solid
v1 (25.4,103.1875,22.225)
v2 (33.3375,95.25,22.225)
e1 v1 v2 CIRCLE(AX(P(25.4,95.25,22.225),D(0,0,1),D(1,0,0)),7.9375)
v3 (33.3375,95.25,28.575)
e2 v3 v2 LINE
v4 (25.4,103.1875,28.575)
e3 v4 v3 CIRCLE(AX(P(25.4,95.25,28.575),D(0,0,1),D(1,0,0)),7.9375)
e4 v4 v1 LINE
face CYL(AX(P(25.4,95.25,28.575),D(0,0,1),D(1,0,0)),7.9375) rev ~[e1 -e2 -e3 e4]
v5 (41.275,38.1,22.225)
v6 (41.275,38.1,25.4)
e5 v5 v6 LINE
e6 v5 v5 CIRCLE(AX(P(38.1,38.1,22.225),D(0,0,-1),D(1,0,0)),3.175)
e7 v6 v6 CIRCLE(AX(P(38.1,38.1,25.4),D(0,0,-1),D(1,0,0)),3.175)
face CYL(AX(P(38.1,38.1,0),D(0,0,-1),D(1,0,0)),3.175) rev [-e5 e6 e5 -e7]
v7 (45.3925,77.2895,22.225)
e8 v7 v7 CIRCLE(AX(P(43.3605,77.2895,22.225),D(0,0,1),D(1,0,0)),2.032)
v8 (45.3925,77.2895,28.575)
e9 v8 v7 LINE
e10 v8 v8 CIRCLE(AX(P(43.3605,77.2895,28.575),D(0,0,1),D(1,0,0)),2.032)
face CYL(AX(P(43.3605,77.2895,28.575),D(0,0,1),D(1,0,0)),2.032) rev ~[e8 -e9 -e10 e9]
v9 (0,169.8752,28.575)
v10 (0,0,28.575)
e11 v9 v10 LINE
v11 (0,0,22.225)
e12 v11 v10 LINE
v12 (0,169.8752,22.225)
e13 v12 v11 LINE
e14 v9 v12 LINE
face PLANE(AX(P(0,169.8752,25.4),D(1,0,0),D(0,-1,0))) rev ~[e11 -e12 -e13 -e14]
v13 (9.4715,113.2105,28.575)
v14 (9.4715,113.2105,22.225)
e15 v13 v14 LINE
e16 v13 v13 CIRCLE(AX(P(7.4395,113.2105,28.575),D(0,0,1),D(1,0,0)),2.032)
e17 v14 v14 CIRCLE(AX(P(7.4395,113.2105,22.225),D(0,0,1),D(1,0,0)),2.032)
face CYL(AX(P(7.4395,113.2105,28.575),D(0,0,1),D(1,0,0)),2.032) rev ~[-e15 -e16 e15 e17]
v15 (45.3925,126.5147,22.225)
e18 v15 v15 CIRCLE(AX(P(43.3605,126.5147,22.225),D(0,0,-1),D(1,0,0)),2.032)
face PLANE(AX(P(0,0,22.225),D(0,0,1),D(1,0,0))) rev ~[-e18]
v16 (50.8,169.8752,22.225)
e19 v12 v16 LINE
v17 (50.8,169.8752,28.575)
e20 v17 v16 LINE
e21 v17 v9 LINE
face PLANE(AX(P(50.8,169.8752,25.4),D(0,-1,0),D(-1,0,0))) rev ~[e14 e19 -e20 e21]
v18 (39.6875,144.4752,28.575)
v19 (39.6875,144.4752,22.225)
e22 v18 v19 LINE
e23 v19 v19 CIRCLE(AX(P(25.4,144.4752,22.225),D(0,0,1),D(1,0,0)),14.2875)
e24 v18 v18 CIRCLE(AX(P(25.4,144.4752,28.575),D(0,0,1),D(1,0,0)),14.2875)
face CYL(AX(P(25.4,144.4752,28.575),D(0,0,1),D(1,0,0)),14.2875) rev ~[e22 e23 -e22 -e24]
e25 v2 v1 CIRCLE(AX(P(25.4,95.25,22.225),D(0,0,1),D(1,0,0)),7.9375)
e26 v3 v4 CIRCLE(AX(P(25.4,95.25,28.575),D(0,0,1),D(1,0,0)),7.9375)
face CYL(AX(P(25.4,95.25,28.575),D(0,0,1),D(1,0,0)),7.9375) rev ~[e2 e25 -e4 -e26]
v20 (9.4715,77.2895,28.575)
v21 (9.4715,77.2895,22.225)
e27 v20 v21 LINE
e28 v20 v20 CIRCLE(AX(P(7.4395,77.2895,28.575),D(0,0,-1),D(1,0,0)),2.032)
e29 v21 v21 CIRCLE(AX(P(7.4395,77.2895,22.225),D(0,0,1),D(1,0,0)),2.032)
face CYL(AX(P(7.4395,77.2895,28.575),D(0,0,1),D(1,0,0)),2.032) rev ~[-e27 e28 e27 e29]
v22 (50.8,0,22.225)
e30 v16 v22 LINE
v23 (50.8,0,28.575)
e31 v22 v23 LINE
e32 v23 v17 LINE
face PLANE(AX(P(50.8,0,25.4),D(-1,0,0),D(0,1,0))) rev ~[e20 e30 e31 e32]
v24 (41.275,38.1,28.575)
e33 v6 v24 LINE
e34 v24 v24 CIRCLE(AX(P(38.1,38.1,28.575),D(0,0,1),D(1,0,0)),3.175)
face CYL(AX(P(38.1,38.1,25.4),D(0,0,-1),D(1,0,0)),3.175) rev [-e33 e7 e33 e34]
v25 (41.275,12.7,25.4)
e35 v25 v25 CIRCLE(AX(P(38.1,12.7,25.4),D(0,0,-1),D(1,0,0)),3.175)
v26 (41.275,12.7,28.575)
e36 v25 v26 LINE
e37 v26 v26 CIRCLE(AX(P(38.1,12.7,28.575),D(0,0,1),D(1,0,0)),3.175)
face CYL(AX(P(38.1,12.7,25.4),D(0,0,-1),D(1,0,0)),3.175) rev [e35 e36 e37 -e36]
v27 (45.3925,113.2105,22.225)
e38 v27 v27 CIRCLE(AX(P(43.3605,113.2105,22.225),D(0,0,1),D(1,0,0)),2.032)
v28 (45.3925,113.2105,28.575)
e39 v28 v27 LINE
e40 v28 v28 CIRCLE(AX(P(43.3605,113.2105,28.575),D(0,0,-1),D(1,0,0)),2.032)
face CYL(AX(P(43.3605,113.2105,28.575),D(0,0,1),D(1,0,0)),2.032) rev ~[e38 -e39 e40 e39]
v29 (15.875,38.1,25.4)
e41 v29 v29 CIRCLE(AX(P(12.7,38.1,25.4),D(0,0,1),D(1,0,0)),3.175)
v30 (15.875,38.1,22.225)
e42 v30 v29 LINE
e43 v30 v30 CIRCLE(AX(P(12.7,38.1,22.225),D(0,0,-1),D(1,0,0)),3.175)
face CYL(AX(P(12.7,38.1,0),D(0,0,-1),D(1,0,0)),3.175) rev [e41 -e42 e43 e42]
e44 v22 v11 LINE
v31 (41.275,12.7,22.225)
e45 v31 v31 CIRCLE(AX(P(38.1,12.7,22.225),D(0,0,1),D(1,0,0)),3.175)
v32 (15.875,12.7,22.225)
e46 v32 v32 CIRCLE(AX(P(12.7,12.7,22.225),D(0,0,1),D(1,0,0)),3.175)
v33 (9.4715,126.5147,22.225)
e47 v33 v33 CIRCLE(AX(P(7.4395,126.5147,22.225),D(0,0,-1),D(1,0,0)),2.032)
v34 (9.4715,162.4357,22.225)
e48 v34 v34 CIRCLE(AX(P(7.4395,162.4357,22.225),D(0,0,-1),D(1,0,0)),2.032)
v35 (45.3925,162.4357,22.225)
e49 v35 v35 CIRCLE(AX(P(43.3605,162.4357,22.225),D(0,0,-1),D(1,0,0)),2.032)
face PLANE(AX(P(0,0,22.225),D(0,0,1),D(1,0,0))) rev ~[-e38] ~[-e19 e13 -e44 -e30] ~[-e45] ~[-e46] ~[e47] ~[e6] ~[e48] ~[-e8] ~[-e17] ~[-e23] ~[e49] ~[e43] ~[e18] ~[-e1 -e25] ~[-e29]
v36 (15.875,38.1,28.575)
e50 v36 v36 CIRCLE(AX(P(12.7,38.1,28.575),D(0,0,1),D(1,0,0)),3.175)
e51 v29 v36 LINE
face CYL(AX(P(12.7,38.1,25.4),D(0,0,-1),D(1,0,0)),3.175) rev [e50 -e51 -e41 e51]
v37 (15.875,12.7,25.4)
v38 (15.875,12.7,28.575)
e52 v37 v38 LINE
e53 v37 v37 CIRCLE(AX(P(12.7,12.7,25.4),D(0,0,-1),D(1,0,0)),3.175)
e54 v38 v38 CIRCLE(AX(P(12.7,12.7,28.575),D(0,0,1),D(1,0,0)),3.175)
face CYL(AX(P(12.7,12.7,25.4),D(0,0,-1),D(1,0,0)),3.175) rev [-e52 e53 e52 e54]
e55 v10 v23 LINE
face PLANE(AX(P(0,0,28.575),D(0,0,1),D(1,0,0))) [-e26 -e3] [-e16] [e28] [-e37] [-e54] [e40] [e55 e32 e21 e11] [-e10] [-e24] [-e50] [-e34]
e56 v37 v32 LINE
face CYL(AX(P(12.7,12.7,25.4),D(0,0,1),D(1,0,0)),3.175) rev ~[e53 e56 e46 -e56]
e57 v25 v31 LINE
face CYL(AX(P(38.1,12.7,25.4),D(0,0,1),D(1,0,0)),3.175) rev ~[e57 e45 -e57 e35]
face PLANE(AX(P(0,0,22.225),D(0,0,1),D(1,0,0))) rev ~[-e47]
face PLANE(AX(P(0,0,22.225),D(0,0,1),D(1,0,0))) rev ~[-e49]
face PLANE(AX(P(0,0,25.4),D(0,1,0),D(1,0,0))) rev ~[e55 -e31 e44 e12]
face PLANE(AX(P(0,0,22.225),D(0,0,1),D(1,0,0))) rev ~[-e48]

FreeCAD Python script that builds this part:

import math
import FreeCAD as App
import Part
import Sketcher
from FreeCAD import Vector
Q = App.Units.Quantity


def add_polygon(sketch, points):
    """Adds a closed chain of lines whose ends are joined by coincident constraints."""
    first, n = sketch.GeometryCount, len(points)
    for a, b in zip(points, points[1:] + points[:1]):
        sketch.addGeometry(Part.LineSegment(App.Vector(*a, 0), App.Vector(*b, 0)), False)
    for i in range(n):
        sketch.addConstraint(Sketcher.Constraint("Coincident", first + i, 2, first + (i + 1) % n, 1))

doc = App.newDocument("Part")
body = doc.addObject("PartDesign::Body", "Body")

sketch1 = doc.addObject("Sketcher::SketchObject", "Sketch")
body.addObject(sketch1)
sketch1.AttachmentSupport = (doc.XY_Plane, [""])
sketch1.MapMode = "FlatFace"
add_polygon(sketch1, [(0, 0), (50.8, 0), (50.8, 169.8752), (25.4, 169.8752), (0, 169.8752)])
sketch1.addGeometry(Part.Circle(Vector(43.3605, 162.4357, 0), Vector(0, 0, 1), 2.032), False)
sketch1.addGeometry(Part.Circle(Vector(25.4, 144.4752, 0), Vector(0, 0, 1), 14.2875), False)
sketch1.addGeometry(Part.Circle(Vector(12.7, 38.1, 0), Vector(0, 0, 1), 3.175), False)
sketch1.addGeometry(Part.Circle(Vector(38.1, 38.1, 0), Vector(0, 0, 1), 3.175), False)
sketch1.addGeometry(Part.ArcOfCircle(Part.Circle(Vector(7.4395, 126.5147, 0), Vector(0, 0, 1), 2.032), math.radians(90), math.radians(360)), False)
sketch1.addGeometry(Part.ArcOfCircle(Part.Circle(Vector(7.4395, 126.5147, 0), Vector(0, 0, 1), 2.032), math.radians(0), math.radians(90)), False)
sketch1.addGeometry(Part.ArcOfCircle(Part.Circle(Vector(7.4395, 162.4357, 0), Vector(0, 0, 1), 2.032), math.radians(0), math.radians(270)), False)
sketch1.addGeometry(Part.ArcOfCircle(Part.Circle(Vector(7.4395, 162.4357, 0), Vector(0, 0, 1), 2.032), math.radians(-90), math.radians(0)), False)
sketch1.addGeometry(Part.Circle(Vector(43.3605, 126.5147, 0), Vector(0, 0, 1), 2.032), False)
sketch1.addConstraint([
    Sketcher.Constraint("Tangent", 9, 1, 10, 2),
    Sketcher.Constraint("Coincident", 10, 1, 9, 2),
    Sketcher.Constraint("Tangent", 11, 1, 12, 2),
    Sketcher.Constraint("Coincident", 12, 1, 11, 2),
    Sketcher.Constraint("Horizontal", 0),
    Sketcher.Constraint("Vertical", 1),
    Sketcher.Constraint("Horizontal", 2),
    Sketcher.Constraint("Horizontal", 3),
    Sketcher.Constraint("Vertical", 4),
    Sketcher.Constraint("Coincident", 4, 2, -1, 1),
    Sketcher.Constraint("Equal", 7, 8),
    Sketcher.Constraint("Equal", 5, 9),
    Sketcher.Constraint("Equal", 10, 11),
    Sketcher.Constraint("Equal", 12, 13),
    Sketcher.Constraint("Horizontal", 7, 3, 8, 3),
    Sketcher.Constraint("Horizontal", 5, 3, 11, 3),
    Sketcher.Constraint("Horizontal", 10, 3, 13, 3),
    Sketcher.Constraint("Horizontal", 13, 3, 10, 1),
    Sketcher.Constraint("Horizontal", 12, 3, 11, 1),
    Sketcher.Constraint("Vertical", 10, 3, 11, 3),
    Sketcher.Constraint("Vertical", 5, 3, 13, 3),
    Sketcher.Constraint("Vertical", 6, 3, 2, 2),
    Sketcher.Constraint("Vertical", 12, 3, 9, 1),
    Sketcher.Constraint("Vertical", 9, 1, 12, 1),
    Sketcher.Constraint("Equal", 2, 3),
    Sketcher.Constraint("Diameter", 5, Q("0.16 in")),
    Sketcher.Constraint("Diameter", 7, Q("0.25 in")),
    Sketcher.Constraint("DistanceX", 0, 1, 0, 2, Q("2 in")),
    Sketcher.Constraint("Diameter", 6, Q("1.125 in")),
    Sketcher.Constraint("DistanceX", 7, 3, 8, 3, Q("1 in")),
    Sketcher.Constraint("DistanceY", 6, 3, 1, 2, Q("1 in")),
    Sketcher.Constraint("DistanceX", -1, 1, 7, 3, Q("0.5 in")),
    Sketcher.Constraint("DistanceY", -1, 1, 7, 3, Q("1.5 in")),
    Sketcher.Constraint("DistanceY", 1, 1, 1, 2, Q("6.688 in")),
    Sketcher.Constraint("DistanceX", -1, 1, 5, 3, Q("1.7071 in")),
    Sketcher.Constraint("DistanceY", -1, 1, 5, 3, Q("6.3951 in")),
    Sketcher.Constraint("DistanceX", -1, 1, 9, 3, Q("0.2929 in")),
    Sketcher.Constraint("DistanceY", -1, 1, 9, 3, Q("4.9809 in")),
])
pad1 = doc.addObject("PartDesign::Pad", "Pad")
body.addObject(pad1)
pad1.Profile = sketch1
pad1.Length = Q("1 in")

sketch2 = doc.addObject("Sketcher::SketchObject", "Sketch001")
body.addObject(sketch2)
sketch2.AttachmentSupport = (doc.XZ_Plane, [""])
sketch2.MapMode = "FlatFace"
sketch2.AttachmentOffset = App.Placement(Vector(0, 0, -6.688 * 25.4), App.Rotation())
add_polygon(sketch2, [(47.625, 3.175), (3.175, 3.175), (3.175, 22.225), (47.625, 22.225)])
sketch2.addConstraint([
    Sketcher.Constraint("Horizontal", 0),
    Sketcher.Constraint("Vertical", 1),
    Sketcher.Constraint("Horizontal", 2),
    Sketcher.Constraint("Vertical", 3),
    Sketcher.Constraint("DistanceX", 0, 2, 0, 1, Q("1.75 in")),
    Sketcher.Constraint("DistanceY", 1, 1, 1, 2, Q("0.75 in")),
    Sketcher.Constraint("DistanceX", -1, 1, 0, 2, Q("0.125 in")),
    Sketcher.Constraint("DistanceY", -1, 1, 0, 2, Q("0.125 in")),
])
pocket1 = doc.addObject("PartDesign::Pocket", "Pocket")
body.addObject(pocket1)
pocket1.Profile = sketch2
pocket1.Length = Q("10 in")
pocket1.Reversed = True

sketch3 = doc.addObject("Sketcher::SketchObject", "Sketch002")
body.addObject(sketch3)
sketch3.AttachmentSupport = (doc.XY_Plane, [""])
sketch3.MapMode = "FlatFace"
sketch3.AttachmentOffset = App.Placement(Vector(0, 0, 1 * 25.4), App.Rotation())
sketch3.addGeometry([
    Part.Circle(Vector(12.7, 12.7, 0), Vector(0, 0, 1), 3.175),
    Part.Circle(Vector(38.1, 12.7, 0), Vector(0, 0, 1), 3.175),
], False)
sketch3.addConstraint([
    Sketcher.Constraint("Equal", 0, 1),
    Sketcher.Constraint("Horizontal", 0, 3, 1, 3),
    Sketcher.Constraint("Diameter", 0, Q("0.25 in")),
    Sketcher.Constraint("DistanceX", 0, 3, 1, 3, Q("1 in")),
    Sketcher.Constraint("DistanceX", -1, 1, 0, 3, Q("0.5 in")),
    Sketcher.Constraint("DistanceY", -1, 1, 0, 3, Q("0.5 in")),
])
pocket2 = doc.addObject("PartDesign::Pocket", "Pocket001")
body.addObject(pocket2)
pocket2.Profile = sketch3
pocket2.Length = Q("1 in")

sketch4 = doc.addObject("Sketcher::SketchObject", "Sketch003")
body.addObject(sketch4)
sketch4.AttachmentSupport = (doc.XZ_Plane, [""])
sketch4.MapMode = "FlatFace"
sketch4.AttachmentOffset = App.Placement(Vector(0, 0, -6.688 * 25.4), App.Rotation())
add_polygon(sketch4, [(47.625, 3.175), (47.625, 22.225), (50.8, 22.225), (50.8, 0), (0, 0), (0, 22.225), (3.175, 22.225), (3.175, 3.175)])
sketch4.addConstraint([
    Sketcher.Constraint("Vertical", 0),
    Sketcher.Constraint("Horizontal", 1),
    Sketcher.Constraint("Vertical", 2),
    Sketcher.Constraint("Horizontal", 3),
    Sketcher.Constraint("Vertical", 4),
    Sketcher.Constraint("Horizontal", 5),
    Sketcher.Constraint("Vertical", 6),
    Sketcher.Constraint("Horizontal", 7),
    Sketcher.Constraint("Coincident", 3, 2, -1, 1),
    Sketcher.Constraint("Horizontal", 1, 2, 4, 2),
    Sketcher.Constraint("Equal", 1, 5),
    Sketcher.Constraint("DistanceX", 3, 2, 3, 1, Q("2 in")),
    Sketcher.Constraint("DistanceX", 7, 1, 7, 2, Q("1.75 in")),
    Sketcher.Constraint("DistanceY", 0, 1, 0, 2, Q("0.75 in")),
    Sketcher.Constraint("DistanceY", 2, 2, 2, 1, Q("0.875 in")),
])
pocket3 = doc.addObject("PartDesign::Pocket", "Pocket002")
body.addObject(pocket3)
pocket3.Profile = sketch4
pocket3.Length = Q("10 in")
pocket3.Reversed = True

sketch5 = doc.addObject("Sketcher::SketchObject", "Sketch004")
body.addObject(sketch5)
sketch5.AttachmentSupport = (doc.XY_Plane, [""])
sketch5.MapMode = "FlatFace"
sketch5.AttachmentOffset = App.Placement(Vector(0, 0, 1 * 25.4), App.Rotation())
add_polygon(sketch5, [(0, 169.8752), (0, 0), (50.8, 0), (50.8, 169.8752)])
sketch5.addGeometry(Part.Circle(Vector(12.7, 12.7, 0), Vector(0, 0, 1), 3.175), False)
sketch5.addGeometry(Part.Circle(Vector(12.7, 38.1, 0), Vector(0, 0, 1), 3.175), False)
sketch5.addGeometry(Part.Circle(Vector(38.1, 12.7, 0), Vector(0, 0, 1), 3.175), False)
sketch5.addGeometry(Part.Circle(Vector(38.1, 38.1, 0), Vector(0, 0, 1), 3.175), False)
sketch5.addGeometry(Part.Circle(Vector(7.4395, 126.5147, 0), Vector(0, 0, 1), 2.032), False)
sketch5.addGeometry(Part.Circle(Vector(7.4395, 162.4357, 0), Vector(0, 0, 1), 2.032), False)
sketch5.addGeometry(Part.Circle(Vector(25.4, 144.4752, 0), Vector(0, 0, 1), 14.2875), False)
sketch5.addGeometry(Part.Circle(Vector(43.3605, 126.5147, 0), Vector(0, 0, 1), 2.032), False)
sketch5.addGeometry(Part.Circle(Vector(43.3605, 162.4357, 0), Vector(0, 0, 1), 2.032), False)
sketch5.addConstraint([
    Sketcher.Constraint("Vertical", 0),
    Sketcher.Constraint("Horizontal", 1),
    Sketcher.Constraint("Vertical", 2),
    Sketcher.Constraint("Horizontal", 3),
    Sketcher.Constraint("Coincident", 0, 2, -1, 1),
    Sketcher.Constraint("Equal", 4, 5),
    Sketcher.Constraint("Equal", 5, 6),
    Sketcher.Constraint("Equal", 6, 7),
    Sketcher.Constraint("Equal", 8, 9),
    Sketcher.Constraint("Equal", 9, 11),
    Sketcher.Constraint("Equal", 11, 12),
    Sketcher.Constraint("Horizontal", 4, 3, 6, 3),
    Sketcher.Constraint("Horizontal", 5, 3, 7, 3),
    Sketcher.Constraint("Horizontal", 8, 3, 11, 3),
    Sketcher.Constraint("Horizontal", 9, 3, 12, 3),
    Sketcher.Constraint("Vertical", 4, 3, 5, 3),
    Sketcher.Constraint("Vertical", 6, 3, 7, 3),
    Sketcher.Constraint("Vertical", 8, 3, 9, 3),
    Sketcher.Constraint("Vertical", 11, 3, 12, 3),
    Sketcher.Constraint("Diameter", 4, Q("0.25 in")),
    Sketcher.Constraint("Diameter", 8, Q("0.16 in")),
    Sketcher.Constraint("DistanceX", 1, 1, 1, 2, Q("2 in")),
    Sketcher.Constraint("Diameter", 10, Q("1.125 in")),
    Sketcher.Constraint("DistanceX", -1, 1, 10, 3, Q("1 in")),
    Sketcher.Constraint("DistanceY", 4, 3, 5, 3, Q("1 in")),
    Sketcher.Constraint("DistanceX", 4, 3, 6, 3, Q("1 in")),
    Sketcher.Constraint("DistanceY", 10, 3, 2, 2, Q("1 in")),
    Sketcher.Constraint("DistanceX", -1, 1, 4, 3, Q("0.5 in")),
    Sketcher.Constraint("DistanceY", -1, 1, 4, 3, Q("0.5 in")),
    Sketcher.Constraint("DistanceY", 0, 2, 0, 1, Q("6.688 in")),
    Sketcher.Constraint("DistanceX", -1, 1, 8, 3, Q("0.2929 in")),
    Sketcher.Constraint("DistanceY", -1, 1, 8, 3, Q("4.9809 in")),
    Sketcher.Constraint("DistanceY", -1, 1, 9, 3, Q("6.3951 in")),
    Sketcher.Constraint("DistanceX", -1, 1, 11, 3, Q("1.7071 in")),
])
pad2 = doc.addObject("PartDesign::Pad", "Pad001")
body.addObject(pad2)
pad2.Profile = sketch5
pad2.Length = Q("0.125 in")

sketch6 = doc.addObject("Sketcher::SketchObject", "Sketch005")
body.addObject(sketch6)
sketch6.AttachmentSupport = (doc.XY_Plane, [""])
sketch6.MapMode = "FlatFace"
sketch6.AttachmentOffset = App.Placement(Vector(0, 0, 1.125 * 25.4), App.Rotation())
sketch6.addGeometry([
    Part.Circle(Vector(25.4, 144.4752, 0), Vector(0, 0, 1), 14.2875),
    Part.Circle(Vector(25.4, 144.4752, 0), Vector(0, 0, 1), 9.525),
], False)
sketch6.addConstraint([
    Sketcher.Constraint("Coincident", 1, 3, 0, 3),
    Sketcher.Constraint("Diameter", 1, Q("0.75 in")),
    Sketcher.Constraint("Diameter", 0, Q("1.125 in")),
    Sketcher.Constraint("DistanceX", -1, 1, 0, 3, Q("1 in")),
    Sketcher.Constraint("DistanceY", -1, 1, 0, 3, Q("5.688 in")),
])
pad3 = doc.addObject("PartDesign::Pad", "Pad002")
body.addObject(pad3)
pad3.Profile = sketch6
pad3.Length = Q("0.25 in")
pad3.Reversed = True

sketch7 = doc.addObject("Sketcher::SketchObject", "Sketch006")
body.addObject(sketch7)
sketch7.AttachmentSupport = (doc.XY_Plane, [""])
sketch7.MapMode = "FlatFace"
sketch7.AttachmentOffset = App.Placement(Vector(0, 0, 1.125 * 25.4), App.Rotation())
sketch7.addGeometry(Part.Circle(Vector(25.4, 95.25, 0), Vector(0, 0, 1), 7.9375), False)
sketch7.addConstraint([
    Sketcher.Constraint("Diameter", 0, Q("0.625 in")),
    Sketcher.Constraint("DistanceX", -1, 1, 0, 3, Q("1 in")),
    Sketcher.Constraint("DistanceY", -1, 1, 0, 3, Q("3.75 in")),
])
pocket4 = doc.addObject("PartDesign::Pocket", "Pocket003")
body.addObject(pocket4)
pocket4.Profile = sketch7
pocket4.Length = Q("1 in")

sketch8 = doc.addObject("Sketcher::SketchObject", "Sketch007")
body.addObject(sketch8)
sketch8.AttachmentSupport = (doc.XY_Plane, [""])
sketch8.MapMode = "FlatFace"
sketch8.AttachmentOffset = App.Placement(Vector(0, 0, 1.125 * 25.4), App.Rotation())
sketch8.addGeometry([
    Part.Circle(Vector(25.4, 144.4752, 0), Vector(0, 0, 1), 14.2875),
    Part.Circle(Vector(25.4, 144.4752, 0), Vector(0, 0, 1), 9.525),
], False)
sketch8.addConstraint([
    Sketcher.Constraint("Coincident", 1, 3, 0, 3),
    Sketcher.Constraint("Diameter", 0, Q("1.125 in")),
    Sketcher.Constraint("Diameter", 1, Q("0.75 in")),
    Sketcher.Constraint("DistanceX", -1, 1, 0, 3, Q("1 in")),
    Sketcher.Constraint("DistanceY", -1, 1, 0, 3, Q("5.688 in")),
])
pocket5 = doc.addObject("PartDesign::Pocket", "Pocket004")
body.addObject(pocket5)
pocket5.Profile = sketch8
pocket5.Length = Q("1 in")

sketch9 = doc.addObject("Sketcher::SketchObject", "Sketch008")
body.addObject(sketch9)
sketch9.AttachmentSupport = (doc.XY_Plane, [""])
sketch9.MapMode = "FlatFace"
sketch9.AttachmentOffset = App.Placement(Vector(0, 0, 1.125 * 25.4), App.Rotation())
sketch9.addGeometry([
    Part.Circle(Vector(7.4395, 77.2895, 0), Vector(0, 0, 1), 2.032),
    Part.Circle(Vector(43.3605, 113.2105, 0), Vector(0, 0, 1), 2.032),
    Part.Circle(Vector(7.4395, 162.4357, 0), Vector(0, 0, 1), 2.032),
    Part.Circle(Vector(7.4395, 126.5147, 0), Vector(0, 0, 1), 2.032),
    Part.Circle(Vector(43.3605, 162.4357, 0), Vector(0, 0, 1), 2.032),
    Part.Circle(Vector(43.3605, 126.5147, 0), Vector(0, 0, 1), 2.032),
    Part.Circle(Vector(7.4395, 113.2105, 0), Vector(0, 0, 1), 2.032),
    Part.Circle(Vector(43.3605, 77.2895, 0), Vector(0, 0, 1), 2.032),
], False)
sketch9.addConstraint([
    Sketcher.Constraint("Equal", 0, 1),
    Sketcher.Constraint("Equal", 1, 2),
    Sketcher.Constraint("Equal", 2, 3),
    Sketcher.Constraint("Equal", 3, 4),
    Sketcher.Constraint("Equal", 4, 5),
    Sketcher.Constraint("Equal", 5, 6),
    Sketcher.Constraint("Equal", 6, 7),
    Sketcher.Constraint("Horizontal", 2, 3, 4, 3),
    Sketcher.Constraint("Horizontal", 3, 3, 5, 3),
    Sketcher.Constraint("Horizontal", 1, 3, 6, 3),
    Sketcher.Constraint("Horizontal", 0, 3, 7, 3),
    Sketcher.Constraint("Vertical", 0, 3, 2, 3),
    Sketcher.Constraint("Vertical", 2, 3, 3, 3),
    Sketcher.Constraint("Vertical", 1, 3, 4, 3),
    Sketcher.Constraint("Vertical", 4, 3, 5, 3),
    Sketcher.Constraint("Vertical", 3, 3, 6, 3),
    Sketcher.Constraint("Vertical", 5, 3, 7, 3),
    Sketcher.Constraint("Diameter", 0, Q("0.16 in")),
    Sketcher.Constraint("DistanceY", 1, 3, 2, 3, Q("1.938 in")),
    Sketcher.Constraint("DistanceY", 0, 3, 3, 3, Q("1.938 in")),
    Sketcher.Constraint("DistanceX", -1, 1, 0, 3, Q("0.2929 in")),
    Sketcher.Constraint("DistanceY", -1, 1, 0, 3, Q("3.0429 in")),
    Sketcher.Constraint("DistanceX", -1, 1, 1, 3, Q("1.7071 in")),
    Sketcher.Constraint("DistanceY", -1, 1, 1, 3, Q("4.4571 in")),
])
pocket6 = doc.addObject("PartDesign::Pocket", "Pocket005")
body.addObject(pocket6)
pocket6.Profile = sketch9
pocket6.Length = Q("0.25 in")

sketch10 = doc.addObject("Sketcher::SketchObject", "Sketch009")
body.addObject(sketch10)
sketch10.AttachmentSupport = (doc.XY_Plane, [""])
sketch10.MapMode = "FlatFace"
sketch10.AttachmentOffset = App.Placement(Vector(0, 0, 1.125 * 25.4), App.Rotation())
sketch10.addGeometry([
    Part.Circle(Vector(7.4395, 162.4357, 0), Vector(0, 0, 1), 2.032),
    Part.Circle(Vector(7.4395, 126.5147, 0), Vector(0, 0, 1), 2.032),
    Part.Circle(Vector(43.3605, 162.4357, 0), Vector(0, 0, 1), 2.032),
    Part.Circle(Vector(43.3605, 126.5147, 0), Vector(0, 0, 1), 2.032),
], False)
sketch10.addConstraint([
    Sketcher.Constraint("Equal", 0, 1),
    Sketcher.Constraint("Equal", 1, 2),
    Sketcher.Constraint("Equal", 2, 3),
    Sketcher.Constraint("Horizontal", 0, 3, 2, 3),
    Sketcher.Constraint("Horizontal", 1, 3, 3, 3),
    Sketcher.Constraint("Vertical", 0, 3, 1, 3),
    Sketcher.Constraint("Vertical", 2, 3, 3, 3),
    Sketcher.Constraint("Diameter", 0, Q("0.16 in")),
    Sketcher.Constraint("DistanceX", -1, 1, 0, 3, Q("0.2929 in")),
    Sketcher.Constraint("DistanceY", -1, 1, 0, 3, Q("6.3951 in")),
    Sketcher.Constraint("DistanceY", -1, 1, 1, 3, Q("4.9809 in")),
    Sketcher.Constraint("DistanceX", -1, 1, 2, 3, Q("1.7071 in")),
])
pad4 = doc.addObject("PartDesign::Pad", "Pad003")
body.addObject(pad4)
pad4.Profile = sketch10
pad4.Length = Q("0.25 in")
pad4.Reversed = True

doc.recompute()
